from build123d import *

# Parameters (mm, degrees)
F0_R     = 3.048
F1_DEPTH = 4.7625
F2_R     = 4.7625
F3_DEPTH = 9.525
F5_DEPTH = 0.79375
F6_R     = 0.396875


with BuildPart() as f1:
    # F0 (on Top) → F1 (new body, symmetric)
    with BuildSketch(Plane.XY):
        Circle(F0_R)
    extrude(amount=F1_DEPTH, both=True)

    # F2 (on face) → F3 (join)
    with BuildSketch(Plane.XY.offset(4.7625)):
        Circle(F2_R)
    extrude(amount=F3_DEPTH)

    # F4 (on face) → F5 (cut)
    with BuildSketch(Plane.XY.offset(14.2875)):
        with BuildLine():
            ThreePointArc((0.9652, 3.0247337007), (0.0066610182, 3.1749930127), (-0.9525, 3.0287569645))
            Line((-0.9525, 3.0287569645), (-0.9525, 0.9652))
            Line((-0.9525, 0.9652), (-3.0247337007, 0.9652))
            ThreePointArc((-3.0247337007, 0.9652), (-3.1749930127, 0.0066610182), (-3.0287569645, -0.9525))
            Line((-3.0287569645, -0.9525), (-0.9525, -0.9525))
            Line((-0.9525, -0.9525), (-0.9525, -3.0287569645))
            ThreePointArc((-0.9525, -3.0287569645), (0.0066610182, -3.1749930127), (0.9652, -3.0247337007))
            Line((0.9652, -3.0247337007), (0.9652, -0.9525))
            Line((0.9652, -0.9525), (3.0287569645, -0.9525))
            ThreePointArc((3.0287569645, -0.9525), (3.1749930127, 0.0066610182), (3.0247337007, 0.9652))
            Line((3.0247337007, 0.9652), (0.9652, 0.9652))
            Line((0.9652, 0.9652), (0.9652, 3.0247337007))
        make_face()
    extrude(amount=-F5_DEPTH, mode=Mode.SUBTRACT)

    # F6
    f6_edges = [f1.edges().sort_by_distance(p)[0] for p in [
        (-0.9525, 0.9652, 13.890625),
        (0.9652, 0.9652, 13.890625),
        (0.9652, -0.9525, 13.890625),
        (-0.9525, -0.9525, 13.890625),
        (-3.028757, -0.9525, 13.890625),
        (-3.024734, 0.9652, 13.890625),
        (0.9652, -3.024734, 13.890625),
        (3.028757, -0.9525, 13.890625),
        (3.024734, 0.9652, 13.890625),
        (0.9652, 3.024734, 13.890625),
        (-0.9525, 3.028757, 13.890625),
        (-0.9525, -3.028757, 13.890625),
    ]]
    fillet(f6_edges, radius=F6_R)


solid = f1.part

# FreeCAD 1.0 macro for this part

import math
import FreeCAD as App
import Part
import Sketcher
from FreeCAD import Vector
Q = App.Units.Quantity


def edges_at(feature, points):
    """Names of the edges that pass closest to the given points."""
    edges = feature.Shape.Edges
    near = lambda p: min(range(len(edges)), key=lambda i: edges[i].distToShape(Part.Vertex(*p))[0])
    return sorted({f"Edge{near(p) + 1}" for p in points})

doc = App.newDocument("Part")
body = doc.addObject("PartDesign::Body", "Body")

sketch1 = body.newObject("Sketcher::SketchObject", "Sketch")
sketch1.AttachmentSupport = (doc.getObject("XY_Plane"), [""])
sketch1.MapMode = "FlatFace"
sketch1.addGeometry(Part.Circle(Vector(0, 0, 0), Vector(0, 0, 1), 3), False)
sketch1.addConstraint(Sketcher.Constraint("Coincident", 0, 3, -1, 1))
sketch1.addConstraint(Sketcher.Constraint("Diameter", 0, Q("0.24 in")))
pad1 = body.newObject("PartDesign::Pad", "Pad")
pad1.Profile = sketch1
pad1.Length = Q("0.375 in")
pad1.Midplane = True

sketch2 = body.newObject("Sketcher::SketchObject", "Sketch001")
sketch2.AttachmentSupport = (doc.getObject("XY_Plane"), [""])
sketch2.MapMode = "FlatFace"
sketch2.AttachmentOffset = App.Placement(Vector(0, 0, 0.1875 * 25.4), App.Rotation())
sketch2.addGeometry(Part.Circle(Vector(0, 0, 0), Vector(0, 0, 1), 4.8), False)
sketch2.addConstraint(Sketcher.Constraint("Coincident", 0, 3, -1, 1))
sketch2.addConstraint(Sketcher.Constraint("Diameter", 0, Q("0.375 in")))
pad2 = body.newObject("PartDesign::Pad", "Pad001")
pad2.Profile = sketch2
pad2.Length = Q("0.375 in")

sketch3 = body.newObject("Sketcher::SketchObject", "Sketch002")
sketch3.AttachmentSupport = (doc.getObject("XY_Plane"), [""])
sketch3.MapMode = "FlatFace"
sketch3.AttachmentOffset = App.Placement(Vector(0, 0, 0.5625 * 25.4), App.Rotation())
sketch3.addGeometry(Part.ArcOfCircle(Part.Circle(Vector(0, 0, 0), Vector(0, 0, 1), 3.2), math.radians(72), math.radians(107)), False)
sketch3.addGeometry(Part.LineSegment(Vector(-1, 3, 0), Vector(-1, 1, 0)), False)
sketch3.addGeometry(Part.LineSegment(Vector(-1, 1, 0), Vector(-3, 1, 0)), False)
sketch3.addGeometry(Part.ArcOfCircle(Part.Circle(Vector(0, 0, 0), Vector(0, 0, 1), 3.2), math.radians(162), math.radians(197)), False)
sketch3.addGeometry(Part.LineSegment(Vector(-3, -1, 0), Vector(-1, -1, 0)), False)
sketch3.addGeometry(Part.LineSegment(Vector(-1, -1, 0), Vector(-1, -3, 0)), False)
sketch3.addGeometry(Part.ArcOfCircle(Part.Circle(Vector(0, 0, 0), Vector(0, 0, 1), 3.2), math.radians(-107), math.radians(-72)), False)
sketch3.addGeometry(Part.LineSegment(Vector(1, -3, 0), Vector(1, -1, 0)), False)
sketch3.addGeometry(Part.LineSegment(Vector(1, -1, 0), Vector(3, -1, 0)), False)
sketch3.addGeometry(Part.ArcOfCircle(Part.Circle(Vector(0, 0, 0), Vector(0, 0, 1), 3.2), math.radians(-17), math.radians(18)), False)
sketch3.addGeometry(Part.LineSegment(Vector(3, 1, 0), Vector(1, 1, 0)), False)
sketch3.addGeometry(Part.LineSegment(Vector(1, 1, 0), Vector(1, 3, 0)), False)
sketch3.addConstraint(Sketcher.Constraint("Coincident", 0, 2, 1, 1))
sketch3.addConstraint(Sketcher.Constraint("Coincident", 1, 2, 2, 1))
sketch3.addConstraint(Sketcher.Constraint("Coincident", 2, 2, 3, 1))
sketch3.addConstraint(Sketcher.Constraint("Coincident", 3, 2, 4, 1))
sketch3.addConstraint(Sketcher.Constraint("Coincident", 4, 2, 5, 1))
sketch3.addConstraint(Sketcher.Constraint("Coincident", 5, 2, 6, 1))
sketch3.addConstraint(Sketcher.Constraint("Coincident", 6, 2, 7, 1))
sketch3.addConstraint(Sketcher.Constraint("Coincident", 7, 2, 8, 1))
sketch3.addConstraint(Sketcher.Constraint("Coincident", 8, 2, 9, 1))
sketch3.addConstraint(Sketcher.Constraint("Coincident", 9, 2, 10, 1))
sketch3.addConstraint(Sketcher.Constraint("Coincident", 10, 2, 11, 1))
sketch3.addConstraint(Sketcher.Constraint("Coincident", 11, 2, 0, 1))
sketch3.addConstraint(Sketcher.Constraint("Vertical", 1))
sketch3.addConstraint(Sketcher.Constraint("Horizontal", 2))
sketch3.addConstraint(Sketcher.Constraint("Horizontal", 4))
sketch3.addConstraint(Sketcher.Constraint("Vertical", 5))
sketch3.addConstraint(Sketcher.Constraint("Vertical", 7))
sketch3.addConstraint(Sketcher.Constraint("Horizontal", 8))
sketch3.addConstraint(Sketcher.Constraint("Horizontal", 10))
sketch3.addConstraint(Sketcher.Constraint("Vertical", 11))
sketch3.addConstraint(Sketcher.Constraint("Coincident", 0, 3, -1, 1))
sketch3.addConstraint(Sketcher.Constraint("Coincident", 3, 3, -1, 1))
sketch3.addConstraint(Sketcher.Constraint("Coincident", 6, 3, -1, 1))
sketch3.addConstraint(Sketcher.Constraint("Coincident", 9, 3, -1, 1))
sketch3.addConstraint(Sketcher.Constraint("Equal", 0, 3))
sketch3.addConstraint(Sketcher.Constraint("Equal", 3, 6))
sketch3.addConstraint(Sketcher.Constraint("Equal", 6, 9))
sketch3.addConstraint(Sketcher.Constraint("Horizontal", 4, 2, 7, 2))
sketch3.addConstraint(Sketcher.Constraint("Horizontal", 2, 2, 9, 2))
sketch3.addConstraint(Sketcher.Constraint("Vertical", 1, 2, 4, 2))
sketch3.addConstraint(Sketcher.Constraint("Vertical", 7, 2, 10, 2))
sketch3.addConstraint(Sketcher.Constraint("Equal", 8, 1))
sketch3.addConstraint(Sketcher.Constraint("Equal", 4, 5))
sketch3.addConstraint(Sketcher.Constraint("Radius", 0, Q("0.125 in")))
sketch3.addConstraint(Sketcher.Constraint("DistanceY", -1, 1, 1, 2, Q("0.038 in")))
sketch3.addConstraint(Sketcher.Constraint("DistanceX", 0, 2, -1, 1, Q("0.0375 in")))
pocket1 = body.newObject("PartDesign::Pocket", "Pocket")
pocket1.Profile = sketch3
pocket1.Length = Q("0.03125 in")
doc.recompute()

fillet = body.newObject("PartDesign::Fillet", "Fillet")
fillet.Base = (pocket1, edges_at(pocket1, [
    (-0.953, 0.965, 13.891),
    (0.965, 0.965, 13.891),
    (0.965, -0.953, 13.891),
    (-0.953, -0.953, 13.891),
    (-3.029, -0.953, 13.891),
    (-3.025, 0.965, 13.891),
    (0.965, -3.025, 13.891),
    (3.029, -0.953, 13.891),
    (3.025, 0.965, 13.891),
    (0.965, 3.025, 13.891),
    (-0.953, 3.029, 13.891),
    (-0.953, -3.029, 13.891),
]))
fillet.Radius = Q("0.015625 in")

doc.recompute()
